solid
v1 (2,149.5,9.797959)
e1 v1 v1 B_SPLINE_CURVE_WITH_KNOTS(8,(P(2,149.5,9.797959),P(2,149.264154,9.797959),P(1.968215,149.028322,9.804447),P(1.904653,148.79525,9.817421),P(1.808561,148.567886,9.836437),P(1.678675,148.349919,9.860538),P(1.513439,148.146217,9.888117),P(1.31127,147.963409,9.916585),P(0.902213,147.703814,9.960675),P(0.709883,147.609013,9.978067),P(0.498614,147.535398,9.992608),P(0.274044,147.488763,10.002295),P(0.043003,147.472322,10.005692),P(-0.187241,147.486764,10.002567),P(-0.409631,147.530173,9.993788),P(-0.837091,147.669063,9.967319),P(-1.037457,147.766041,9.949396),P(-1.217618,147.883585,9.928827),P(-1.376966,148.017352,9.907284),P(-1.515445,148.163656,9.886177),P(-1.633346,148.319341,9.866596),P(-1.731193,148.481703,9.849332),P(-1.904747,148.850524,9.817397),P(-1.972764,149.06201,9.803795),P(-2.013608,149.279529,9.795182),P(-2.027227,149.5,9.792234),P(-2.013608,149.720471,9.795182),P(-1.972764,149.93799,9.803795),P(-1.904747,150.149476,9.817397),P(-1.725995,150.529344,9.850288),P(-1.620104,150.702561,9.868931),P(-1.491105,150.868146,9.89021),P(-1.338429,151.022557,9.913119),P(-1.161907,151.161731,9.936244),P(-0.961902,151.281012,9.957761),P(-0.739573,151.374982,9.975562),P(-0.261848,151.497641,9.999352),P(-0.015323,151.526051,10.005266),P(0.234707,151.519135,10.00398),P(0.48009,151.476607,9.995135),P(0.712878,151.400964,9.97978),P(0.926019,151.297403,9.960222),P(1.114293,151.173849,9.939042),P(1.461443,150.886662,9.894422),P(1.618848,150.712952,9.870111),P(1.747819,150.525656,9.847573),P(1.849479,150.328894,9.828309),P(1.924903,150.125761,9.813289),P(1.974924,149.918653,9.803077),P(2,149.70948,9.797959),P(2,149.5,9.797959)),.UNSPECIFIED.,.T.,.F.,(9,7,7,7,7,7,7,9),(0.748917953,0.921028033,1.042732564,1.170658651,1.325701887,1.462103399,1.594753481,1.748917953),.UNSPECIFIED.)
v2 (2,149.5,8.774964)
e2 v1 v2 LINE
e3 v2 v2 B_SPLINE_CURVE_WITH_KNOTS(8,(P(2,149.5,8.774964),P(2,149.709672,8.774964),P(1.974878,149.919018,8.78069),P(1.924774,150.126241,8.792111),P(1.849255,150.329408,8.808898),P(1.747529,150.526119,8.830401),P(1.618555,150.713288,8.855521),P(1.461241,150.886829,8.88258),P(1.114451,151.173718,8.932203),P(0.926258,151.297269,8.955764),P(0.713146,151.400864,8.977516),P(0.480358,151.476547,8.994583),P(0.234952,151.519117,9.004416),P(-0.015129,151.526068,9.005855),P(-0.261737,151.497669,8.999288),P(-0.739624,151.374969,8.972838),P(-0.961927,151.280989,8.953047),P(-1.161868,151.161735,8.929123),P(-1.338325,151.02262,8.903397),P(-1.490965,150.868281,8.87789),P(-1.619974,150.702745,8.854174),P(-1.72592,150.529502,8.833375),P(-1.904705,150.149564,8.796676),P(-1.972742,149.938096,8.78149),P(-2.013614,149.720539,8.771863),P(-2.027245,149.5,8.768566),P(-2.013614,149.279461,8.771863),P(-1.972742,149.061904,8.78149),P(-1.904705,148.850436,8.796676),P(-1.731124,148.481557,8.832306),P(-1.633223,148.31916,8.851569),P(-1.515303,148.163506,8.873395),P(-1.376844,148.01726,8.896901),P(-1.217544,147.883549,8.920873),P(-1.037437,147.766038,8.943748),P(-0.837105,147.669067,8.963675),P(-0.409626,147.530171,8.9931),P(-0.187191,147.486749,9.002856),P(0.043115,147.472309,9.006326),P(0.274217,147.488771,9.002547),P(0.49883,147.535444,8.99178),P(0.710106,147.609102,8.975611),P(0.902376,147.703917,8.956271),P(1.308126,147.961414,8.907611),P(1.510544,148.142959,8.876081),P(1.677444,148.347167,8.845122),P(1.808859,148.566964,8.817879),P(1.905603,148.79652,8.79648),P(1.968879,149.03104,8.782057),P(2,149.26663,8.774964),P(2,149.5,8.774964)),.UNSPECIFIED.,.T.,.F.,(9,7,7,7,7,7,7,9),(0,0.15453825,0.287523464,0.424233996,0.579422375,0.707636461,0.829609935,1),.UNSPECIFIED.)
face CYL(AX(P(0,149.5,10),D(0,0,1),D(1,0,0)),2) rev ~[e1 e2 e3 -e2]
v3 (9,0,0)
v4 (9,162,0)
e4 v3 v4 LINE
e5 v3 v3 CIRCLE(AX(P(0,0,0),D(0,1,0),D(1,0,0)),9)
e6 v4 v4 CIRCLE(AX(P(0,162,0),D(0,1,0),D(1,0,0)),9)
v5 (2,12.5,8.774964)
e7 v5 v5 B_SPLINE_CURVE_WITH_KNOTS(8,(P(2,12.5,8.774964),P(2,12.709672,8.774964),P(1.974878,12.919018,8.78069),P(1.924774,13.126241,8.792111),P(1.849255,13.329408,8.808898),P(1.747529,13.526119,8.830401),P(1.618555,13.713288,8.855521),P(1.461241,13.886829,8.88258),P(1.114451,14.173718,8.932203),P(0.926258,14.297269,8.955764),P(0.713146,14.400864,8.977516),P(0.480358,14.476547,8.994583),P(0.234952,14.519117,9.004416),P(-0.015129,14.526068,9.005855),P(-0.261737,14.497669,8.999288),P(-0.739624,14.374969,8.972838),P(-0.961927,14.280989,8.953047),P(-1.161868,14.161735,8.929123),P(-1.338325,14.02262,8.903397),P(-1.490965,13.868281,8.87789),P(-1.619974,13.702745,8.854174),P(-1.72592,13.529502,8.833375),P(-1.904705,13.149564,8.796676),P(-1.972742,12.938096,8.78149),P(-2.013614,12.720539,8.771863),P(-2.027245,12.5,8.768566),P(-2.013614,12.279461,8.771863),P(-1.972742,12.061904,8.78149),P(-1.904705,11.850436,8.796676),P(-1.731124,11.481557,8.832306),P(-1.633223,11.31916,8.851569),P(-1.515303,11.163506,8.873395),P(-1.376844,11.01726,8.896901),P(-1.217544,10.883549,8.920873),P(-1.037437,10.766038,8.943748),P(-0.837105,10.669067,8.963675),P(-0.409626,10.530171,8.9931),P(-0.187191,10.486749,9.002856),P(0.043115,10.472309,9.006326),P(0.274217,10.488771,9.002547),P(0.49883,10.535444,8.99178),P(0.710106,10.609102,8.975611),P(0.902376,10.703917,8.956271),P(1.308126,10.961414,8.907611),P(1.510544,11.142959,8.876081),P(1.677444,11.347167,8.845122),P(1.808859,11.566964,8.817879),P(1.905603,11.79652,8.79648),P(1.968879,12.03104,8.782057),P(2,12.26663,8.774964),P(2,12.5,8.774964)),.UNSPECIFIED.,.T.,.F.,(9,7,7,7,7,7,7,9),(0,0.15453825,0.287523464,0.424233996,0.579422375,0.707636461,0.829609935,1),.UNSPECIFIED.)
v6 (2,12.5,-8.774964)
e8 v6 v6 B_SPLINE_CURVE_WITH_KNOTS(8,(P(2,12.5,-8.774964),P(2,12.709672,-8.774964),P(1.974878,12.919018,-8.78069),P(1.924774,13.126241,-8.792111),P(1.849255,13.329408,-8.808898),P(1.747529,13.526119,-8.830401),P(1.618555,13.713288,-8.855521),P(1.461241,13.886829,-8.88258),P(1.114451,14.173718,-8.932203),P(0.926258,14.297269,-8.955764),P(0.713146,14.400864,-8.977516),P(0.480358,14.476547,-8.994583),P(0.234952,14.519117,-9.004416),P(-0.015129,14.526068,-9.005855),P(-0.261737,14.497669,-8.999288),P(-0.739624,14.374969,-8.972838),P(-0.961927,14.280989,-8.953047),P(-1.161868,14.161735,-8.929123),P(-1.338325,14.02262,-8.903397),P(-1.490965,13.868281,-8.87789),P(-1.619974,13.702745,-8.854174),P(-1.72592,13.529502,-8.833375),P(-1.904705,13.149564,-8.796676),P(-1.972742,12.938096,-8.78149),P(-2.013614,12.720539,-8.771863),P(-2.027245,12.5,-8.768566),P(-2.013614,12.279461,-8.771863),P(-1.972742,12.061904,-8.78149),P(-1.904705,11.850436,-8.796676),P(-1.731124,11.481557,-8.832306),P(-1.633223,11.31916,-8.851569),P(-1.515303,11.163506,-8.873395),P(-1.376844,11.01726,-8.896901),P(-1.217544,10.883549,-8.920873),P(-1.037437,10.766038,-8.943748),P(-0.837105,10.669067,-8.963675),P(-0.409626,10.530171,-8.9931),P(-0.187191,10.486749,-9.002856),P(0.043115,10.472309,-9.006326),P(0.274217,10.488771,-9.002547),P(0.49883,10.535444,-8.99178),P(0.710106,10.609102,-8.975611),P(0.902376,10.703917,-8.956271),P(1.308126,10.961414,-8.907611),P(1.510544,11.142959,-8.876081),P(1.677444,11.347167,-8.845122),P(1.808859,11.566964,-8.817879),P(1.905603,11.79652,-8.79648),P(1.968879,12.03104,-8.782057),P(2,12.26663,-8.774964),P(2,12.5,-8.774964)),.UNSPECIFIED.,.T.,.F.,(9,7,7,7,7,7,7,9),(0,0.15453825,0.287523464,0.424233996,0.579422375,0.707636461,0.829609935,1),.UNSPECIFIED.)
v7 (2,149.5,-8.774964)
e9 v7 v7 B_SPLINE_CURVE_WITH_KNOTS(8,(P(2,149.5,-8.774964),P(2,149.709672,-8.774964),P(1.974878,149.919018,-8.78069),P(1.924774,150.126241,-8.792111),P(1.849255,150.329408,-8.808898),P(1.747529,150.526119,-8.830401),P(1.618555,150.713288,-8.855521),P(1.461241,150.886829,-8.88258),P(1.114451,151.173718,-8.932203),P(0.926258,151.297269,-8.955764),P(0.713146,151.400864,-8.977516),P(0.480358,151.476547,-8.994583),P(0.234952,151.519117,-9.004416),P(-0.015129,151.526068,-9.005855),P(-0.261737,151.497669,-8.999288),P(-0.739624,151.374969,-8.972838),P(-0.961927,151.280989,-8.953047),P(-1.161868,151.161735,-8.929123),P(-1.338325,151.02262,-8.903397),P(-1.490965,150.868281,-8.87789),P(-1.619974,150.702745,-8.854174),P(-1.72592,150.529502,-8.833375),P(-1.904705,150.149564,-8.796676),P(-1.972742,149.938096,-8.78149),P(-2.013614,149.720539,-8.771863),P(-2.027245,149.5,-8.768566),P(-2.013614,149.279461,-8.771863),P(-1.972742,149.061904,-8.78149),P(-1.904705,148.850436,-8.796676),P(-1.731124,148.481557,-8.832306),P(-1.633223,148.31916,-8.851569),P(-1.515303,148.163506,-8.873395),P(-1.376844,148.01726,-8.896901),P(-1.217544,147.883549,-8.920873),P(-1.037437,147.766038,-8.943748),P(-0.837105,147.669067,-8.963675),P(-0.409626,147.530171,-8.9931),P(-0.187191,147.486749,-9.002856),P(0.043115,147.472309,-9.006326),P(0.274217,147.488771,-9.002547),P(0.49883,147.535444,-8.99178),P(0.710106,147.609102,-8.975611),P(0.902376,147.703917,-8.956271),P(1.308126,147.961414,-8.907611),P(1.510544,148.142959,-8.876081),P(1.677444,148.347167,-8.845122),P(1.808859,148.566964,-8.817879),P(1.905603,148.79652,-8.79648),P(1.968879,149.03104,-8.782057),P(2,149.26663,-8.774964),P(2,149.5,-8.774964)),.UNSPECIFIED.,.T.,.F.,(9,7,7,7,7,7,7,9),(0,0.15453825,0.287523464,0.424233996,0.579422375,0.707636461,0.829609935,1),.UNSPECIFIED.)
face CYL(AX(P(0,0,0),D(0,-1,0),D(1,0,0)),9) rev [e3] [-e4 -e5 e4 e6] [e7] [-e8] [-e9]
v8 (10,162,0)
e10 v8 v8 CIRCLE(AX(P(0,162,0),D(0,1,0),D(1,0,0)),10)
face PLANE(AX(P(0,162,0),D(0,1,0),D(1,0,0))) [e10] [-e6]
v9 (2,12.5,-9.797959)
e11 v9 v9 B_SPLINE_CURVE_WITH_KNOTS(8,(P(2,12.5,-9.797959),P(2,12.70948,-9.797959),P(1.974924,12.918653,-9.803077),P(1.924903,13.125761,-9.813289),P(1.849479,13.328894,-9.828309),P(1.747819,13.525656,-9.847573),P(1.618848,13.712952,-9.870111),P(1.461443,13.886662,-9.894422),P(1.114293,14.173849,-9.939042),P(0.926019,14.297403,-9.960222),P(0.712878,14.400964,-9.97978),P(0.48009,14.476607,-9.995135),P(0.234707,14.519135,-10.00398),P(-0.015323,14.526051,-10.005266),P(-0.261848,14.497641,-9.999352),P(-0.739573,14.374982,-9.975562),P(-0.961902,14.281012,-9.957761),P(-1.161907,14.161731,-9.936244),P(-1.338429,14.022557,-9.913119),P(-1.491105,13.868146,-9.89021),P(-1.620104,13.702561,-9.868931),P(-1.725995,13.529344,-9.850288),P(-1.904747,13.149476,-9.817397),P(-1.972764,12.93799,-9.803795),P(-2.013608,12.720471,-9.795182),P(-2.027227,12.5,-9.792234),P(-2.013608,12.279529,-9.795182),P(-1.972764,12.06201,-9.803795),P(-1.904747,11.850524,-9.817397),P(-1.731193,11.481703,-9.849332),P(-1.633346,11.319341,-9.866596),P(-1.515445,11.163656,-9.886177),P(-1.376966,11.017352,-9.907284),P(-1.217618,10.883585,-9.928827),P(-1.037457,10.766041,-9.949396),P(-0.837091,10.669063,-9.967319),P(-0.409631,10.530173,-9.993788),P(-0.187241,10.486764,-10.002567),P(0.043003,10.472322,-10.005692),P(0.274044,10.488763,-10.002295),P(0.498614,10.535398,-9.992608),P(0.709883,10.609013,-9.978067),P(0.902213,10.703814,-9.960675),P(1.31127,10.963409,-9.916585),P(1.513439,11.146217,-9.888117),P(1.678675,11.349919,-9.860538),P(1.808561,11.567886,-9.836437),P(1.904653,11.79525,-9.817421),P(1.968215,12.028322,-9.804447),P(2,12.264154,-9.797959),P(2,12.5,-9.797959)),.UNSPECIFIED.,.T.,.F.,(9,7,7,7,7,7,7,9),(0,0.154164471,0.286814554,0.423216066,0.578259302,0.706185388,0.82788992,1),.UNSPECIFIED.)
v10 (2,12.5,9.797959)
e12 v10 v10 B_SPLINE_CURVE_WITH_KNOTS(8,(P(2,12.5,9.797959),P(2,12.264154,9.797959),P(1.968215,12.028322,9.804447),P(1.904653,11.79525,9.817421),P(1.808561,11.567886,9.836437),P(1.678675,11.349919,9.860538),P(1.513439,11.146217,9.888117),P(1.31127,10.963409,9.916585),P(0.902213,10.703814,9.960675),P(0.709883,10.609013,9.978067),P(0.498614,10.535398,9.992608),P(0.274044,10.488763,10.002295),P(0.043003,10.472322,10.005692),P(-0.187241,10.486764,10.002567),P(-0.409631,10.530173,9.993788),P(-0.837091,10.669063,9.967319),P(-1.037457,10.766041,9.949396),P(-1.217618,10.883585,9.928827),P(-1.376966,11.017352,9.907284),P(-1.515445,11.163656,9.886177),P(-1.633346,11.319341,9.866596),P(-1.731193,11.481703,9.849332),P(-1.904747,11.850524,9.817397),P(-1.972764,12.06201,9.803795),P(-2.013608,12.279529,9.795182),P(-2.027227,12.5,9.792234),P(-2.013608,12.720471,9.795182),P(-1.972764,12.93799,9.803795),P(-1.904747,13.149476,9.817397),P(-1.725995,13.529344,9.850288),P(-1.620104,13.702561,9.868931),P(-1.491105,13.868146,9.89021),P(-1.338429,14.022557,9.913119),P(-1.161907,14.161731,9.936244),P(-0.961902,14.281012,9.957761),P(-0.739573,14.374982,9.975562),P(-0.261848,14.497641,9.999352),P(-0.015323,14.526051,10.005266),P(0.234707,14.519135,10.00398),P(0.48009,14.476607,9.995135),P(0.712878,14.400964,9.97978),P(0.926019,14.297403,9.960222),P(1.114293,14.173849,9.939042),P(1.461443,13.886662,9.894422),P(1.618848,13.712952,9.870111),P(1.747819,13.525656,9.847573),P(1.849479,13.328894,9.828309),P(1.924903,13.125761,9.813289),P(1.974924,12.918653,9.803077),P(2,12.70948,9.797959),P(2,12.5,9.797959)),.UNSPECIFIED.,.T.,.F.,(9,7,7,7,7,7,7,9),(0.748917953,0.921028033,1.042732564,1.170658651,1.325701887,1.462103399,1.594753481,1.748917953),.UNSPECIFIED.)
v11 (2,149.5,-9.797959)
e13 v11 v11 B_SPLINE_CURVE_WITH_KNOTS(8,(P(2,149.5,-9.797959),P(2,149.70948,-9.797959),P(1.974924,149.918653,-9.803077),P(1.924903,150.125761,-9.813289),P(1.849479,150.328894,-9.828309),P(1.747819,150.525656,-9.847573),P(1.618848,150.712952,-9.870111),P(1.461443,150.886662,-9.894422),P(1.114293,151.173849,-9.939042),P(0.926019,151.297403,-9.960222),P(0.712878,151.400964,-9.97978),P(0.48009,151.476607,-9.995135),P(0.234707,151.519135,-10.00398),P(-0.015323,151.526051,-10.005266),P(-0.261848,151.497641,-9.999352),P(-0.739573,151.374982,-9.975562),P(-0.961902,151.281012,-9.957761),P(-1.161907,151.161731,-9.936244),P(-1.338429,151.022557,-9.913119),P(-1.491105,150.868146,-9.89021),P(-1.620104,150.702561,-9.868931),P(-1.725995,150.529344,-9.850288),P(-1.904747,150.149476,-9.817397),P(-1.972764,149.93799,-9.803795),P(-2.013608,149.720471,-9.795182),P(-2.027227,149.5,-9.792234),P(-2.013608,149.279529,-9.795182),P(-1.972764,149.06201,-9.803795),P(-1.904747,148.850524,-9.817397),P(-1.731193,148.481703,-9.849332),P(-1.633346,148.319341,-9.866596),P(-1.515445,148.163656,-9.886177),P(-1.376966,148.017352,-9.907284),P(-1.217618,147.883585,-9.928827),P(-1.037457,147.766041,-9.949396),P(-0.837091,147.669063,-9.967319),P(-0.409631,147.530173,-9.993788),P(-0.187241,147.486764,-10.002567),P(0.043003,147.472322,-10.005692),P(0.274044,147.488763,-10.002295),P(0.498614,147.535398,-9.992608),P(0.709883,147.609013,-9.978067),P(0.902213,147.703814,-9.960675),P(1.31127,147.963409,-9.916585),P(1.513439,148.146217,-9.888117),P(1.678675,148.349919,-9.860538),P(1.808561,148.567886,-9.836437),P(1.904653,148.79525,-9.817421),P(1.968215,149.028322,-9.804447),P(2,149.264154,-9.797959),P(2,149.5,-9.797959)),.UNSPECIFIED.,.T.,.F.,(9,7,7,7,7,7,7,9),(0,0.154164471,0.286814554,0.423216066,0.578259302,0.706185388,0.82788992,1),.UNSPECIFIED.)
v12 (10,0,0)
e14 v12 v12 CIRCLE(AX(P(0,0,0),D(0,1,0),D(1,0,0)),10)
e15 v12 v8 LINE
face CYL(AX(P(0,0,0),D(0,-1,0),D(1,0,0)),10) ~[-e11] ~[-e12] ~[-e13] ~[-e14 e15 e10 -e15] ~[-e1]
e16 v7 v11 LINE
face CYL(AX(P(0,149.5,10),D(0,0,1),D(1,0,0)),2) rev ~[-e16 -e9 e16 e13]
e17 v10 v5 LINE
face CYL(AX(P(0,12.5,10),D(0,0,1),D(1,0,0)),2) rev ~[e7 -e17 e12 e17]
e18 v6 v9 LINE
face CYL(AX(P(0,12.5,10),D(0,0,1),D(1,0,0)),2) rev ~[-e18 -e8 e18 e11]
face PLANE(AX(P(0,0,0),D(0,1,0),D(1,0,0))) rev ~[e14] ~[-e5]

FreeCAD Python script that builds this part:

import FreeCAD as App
import Part
import Sketcher
from FreeCAD import Vector
Q = App.Units.Quantity

doc = App.newDocument("Part")
body = doc.addObject("PartDesign::Body", "Body")

# Sketch on XZ plane
sketch1 = body.newObject("Sketcher::SketchObject", "Sketch")
sketch1.AttachmentSupport = (doc.getObject("XZ_Plane"), [""])
sketch1.MapMode = "FlatFace"
sketch1.addGeometry([
    Part.Circle(Vector(0, 0, 0), Vector(0, 0, 1), 10),
    Part.Circle(Vector(0, 0, 0), Vector(0, 0, 1), 9),
], False)
sketch1.addConstraint([
    Sketcher.Constraint("Coincident", 0, 3, -1, 1),
    Sketcher.Constraint("Coincident", 1, 3, -1, 1),
    Sketcher.Constraint("Diameter", 0, Q("20 mm")),
    Sketcher.Constraint("Diameter", 1, Q("18 mm")),
])
pad1 = body.newObject("PartDesign::Pad", "Pad")
pad1.Profile = sketch1
pad1.Length = 162
pad1.Reversed = True

# Sketch on XY plane
sketch2 = body.newObject("Sketcher::SketchObject", "Sketch001")
sketch2.AttachmentSupport = (doc.getObject("XY_Plane"), [""])
sketch2.MapMode = "FlatFace"
sketch2.AttachmentOffset = App.Placement(Vector(0, 0, 10), App.Rotation())
sketch2.addGeometry([
    Part.Circle(Vector(0, 149.5, 0), Vector(0, 0, 1), 2),
    Part.Circle(Vector(0, 12.5, 0), Vector(0, 0, 1), 2),
], False)
sketch2.addConstraint([
    Sketcher.Constraint("Equal", 0, 1),
    Sketcher.Constraint("PointOnObject", 0, 3, -2),
    Sketcher.Constraint("PointOnObject", 1, 3, -2),
    Sketcher.Constraint("Diameter", 0, Q("4 mm")),
    Sketcher.Constraint("DistanceY", 1, 3, 0, 3, Q("137 mm")),
    Sketcher.Constraint("DistanceY", -1, 1, 0, 3, Q("149.5 mm")),
])
pocket1 = body.newObject("PartDesign::Pocket", "Pocket")
pocket1.Profile = sketch2
pocket1.Type = "ThroughAll"

doc.recompute()
